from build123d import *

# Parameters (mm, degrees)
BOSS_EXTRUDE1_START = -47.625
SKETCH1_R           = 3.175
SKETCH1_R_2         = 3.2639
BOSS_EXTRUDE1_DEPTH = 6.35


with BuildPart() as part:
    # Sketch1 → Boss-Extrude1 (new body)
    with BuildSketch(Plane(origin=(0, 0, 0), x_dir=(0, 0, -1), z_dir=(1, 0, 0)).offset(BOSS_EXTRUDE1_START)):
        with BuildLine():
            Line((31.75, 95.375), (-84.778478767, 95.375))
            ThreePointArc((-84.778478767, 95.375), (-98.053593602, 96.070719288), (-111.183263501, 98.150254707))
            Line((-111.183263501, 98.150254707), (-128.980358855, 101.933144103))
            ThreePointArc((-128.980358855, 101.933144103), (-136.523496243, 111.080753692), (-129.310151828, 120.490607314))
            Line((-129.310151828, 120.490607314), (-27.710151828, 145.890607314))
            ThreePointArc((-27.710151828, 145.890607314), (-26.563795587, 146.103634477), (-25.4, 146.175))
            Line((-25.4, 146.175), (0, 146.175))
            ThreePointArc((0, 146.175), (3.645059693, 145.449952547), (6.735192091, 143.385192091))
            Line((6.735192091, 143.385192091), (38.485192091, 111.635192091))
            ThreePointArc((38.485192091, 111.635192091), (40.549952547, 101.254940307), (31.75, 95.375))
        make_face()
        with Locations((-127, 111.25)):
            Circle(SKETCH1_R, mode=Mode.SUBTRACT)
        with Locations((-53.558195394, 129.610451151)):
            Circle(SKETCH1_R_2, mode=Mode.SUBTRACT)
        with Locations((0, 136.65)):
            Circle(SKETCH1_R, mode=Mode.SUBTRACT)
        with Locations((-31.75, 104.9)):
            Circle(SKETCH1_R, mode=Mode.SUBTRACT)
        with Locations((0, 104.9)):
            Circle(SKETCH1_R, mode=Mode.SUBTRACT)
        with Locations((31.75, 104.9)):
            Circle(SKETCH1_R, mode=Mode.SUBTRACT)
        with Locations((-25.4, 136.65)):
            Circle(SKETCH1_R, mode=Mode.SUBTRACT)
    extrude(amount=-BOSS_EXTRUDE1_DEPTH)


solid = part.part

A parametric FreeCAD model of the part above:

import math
import FreeCAD as App
import Part
import Sketcher

V = App.Vector
Q = App.Units.Quantity

doc = App.newDocument("Part")
body = doc.addObject("PartDesign::Body", "Body")

sketch1 = body.newObject("Sketcher::SketchObject", "Sketch")
sketch1.AttachmentSupport = (doc.getObject("YZ_Plane"), [""])
sketch1.MapMode = "FlatFace"
sketch1.AttachmentOffset = App.Placement(V(0, 0, -1.875 * 25.4), App.Rotation())
sketch1.addGeometry([
    Part.LineSegment(V(95.375, 84.778479, 0), V(95.375, -31.75, 0)),
    Part.ArcOfCircle(Part.Circle(V(104.9, -31.75, 0), V(0, 0, 1), 9.525), math.radians(-180), math.radians(-45)),
    Part.LineSegment(V(111.635192, -38.485192, 0), V(143.385192, -6.735192, 0)),
    Part.ArcOfCircle(Part.Circle(V(136.65, 0, 0), V(0, 0, 1), 9.525), math.radians(-45), math.radians(0)),
    Part.LineSegment(V(146.175, 0, 0), V(146.175, 25.4, 0)),
    Part.ArcOfCircle(Part.Circle(V(136.65, 25.4, 0), V(0, 0, 1), 9.525), math.radians(0), math.radians(14.036243)),
    Part.LineSegment(V(145.890607, 27.710152, 0), V(120.490607, 129.310152, 0)),
    Part.ArcOfCircle(Part.Circle(V(111.25, 127, 0), V(0, 0, 1), 9.525), math.radians(14.036243), math.radians(168)),
    Part.LineSegment(V(101.933144, 128.980359, 0), V(98.150255, 111.183264, 0)),
    Part.ArcOfCircle(Part.Circle(V(222.375, 84.778479, 0), V(0, 0, 1), 127), math.radians(168), math.radians(180)),
    Part.Circle(V(104.9, -31.75, 0), V(0, 0, 1), 3.175),
    Part.Circle(V(104.9, 0, 0), V(0, 0, 1), 3.175),
    Part.Circle(V(104.9, 31.75, 0), V(0, 0, 1), 3.175),
    Part.Circle(V(111.25, 127, 0), V(0, 0, 1), 3.175),
    Part.Circle(V(136.65, 0, 0), V(0, 0, 1), 3.175),
    Part.Circle(V(136.65, 25.4, 0), V(0, 0, 1), 3.175),
    Part.Circle(V(129.610451, 53.558195, 0), V(0, 0, 1), 3.2639),
], False)
sketch1.addConstraint([
    Sketcher.Constraint("Tangent", 0, 2, 1, 1),
    Sketcher.Constraint("Tangent", 1, 2, 2, 1),
    Sketcher.Constraint("Tangent", 2, 2, 3, 1),
    Sketcher.Constraint("Tangent", 3, 2, 4, 1),
    Sketcher.Constraint("Tangent", 4, 2, 5, 1),
    Sketcher.Constraint("Tangent", 5, 2, 6, 1),
    Sketcher.Constraint("Tangent", 6, 2, 7, 1),
    Sketcher.Constraint("Tangent", 7, 2, 8, 1),
    Sketcher.Constraint("Tangent", 8, 2, 9, 1),
    Sketcher.Constraint("Tangent", 9, 2, 0, 1),
    Sketcher.Constraint("Vertical", 0),
    Sketcher.Constraint("Vertical", 4),
    Sketcher.Constraint("Coincident", 10, 3, 1, 3),
    Sketcher.Constraint("Coincident", 13, 3, 7, 3),
    Sketcher.Constraint("Coincident", 14, 3, 3, 3),
    Sketcher.Constraint("Coincident", 15, 3, 5, 3),
    Sketcher.Constraint("Equal", 1, 3),
    Sketcher.Constraint("Equal", 3, 5),
    Sketcher.Constraint("Equal", 5, 7),
    Sketcher.Constraint("Equal", 10, 11),
    Sketcher.Constraint("Equal", 11, 12),
    Sketcher.Constraint("Equal", 12, 13),
    Sketcher.Constraint("Equal", 13, 14),
    Sketcher.Constraint("Equal", 14, 15),
    Sketcher.Constraint("Symmetric", 1, 3, 12, 3, -1),
    Sketcher.Constraint("PointOnObject", 3, 3, -1),
    Sketcher.Constraint("PointOnObject", 11, 3, -1),
    Sketcher.Constraint("Vertical", 10, 3, 11, 3),
    Sketcher.Constraint("Radius", 9, Q("5 in")),
    Sketcher.Constraint("Diameter", 10, Q("0.25 in")),
    Sketcher.Constraint("DistanceY", 4, 1, 4, 2, Q("1 in")),
    Sketcher.Constraint("Diameter", 16, Q("0.257 in")),
    Sketcher.Constraint("DistanceY", -1, 1, 7, 3, Q("5 in")),
    Sketcher.Constraint("Angle", 2, Q("45 deg")),
    Sketcher.Constraint("Angle", 8, Q("-102 deg")),
    Sketcher.Constraint("Radius", 1, Q("0.375 in")),
    Sketcher.Constraint("DistanceX", 7, 3, 5, 3, Q("1 in")),
    Sketcher.Constraint("DistanceY", 1, 3, 12, 3, Q("2.5 in")),
    Sketcher.Constraint("DistanceX", -1, 1, 1, 3, Q("104.9 mm")),
    Sketcher.Constraint("DistanceX", -1, 1, 16, 3, Q("129.610451 mm")),
    Sketcher.Constraint("DistanceY", 16, 3, 8, 2, Q("57.625068 mm")),
])
pad1 = body.newObject("PartDesign::Pad", "Pad")
pad1.Profile = sketch1
pad1.Length = Q("0.25 in")
pad1.Reversed = True

doc.recompute()
